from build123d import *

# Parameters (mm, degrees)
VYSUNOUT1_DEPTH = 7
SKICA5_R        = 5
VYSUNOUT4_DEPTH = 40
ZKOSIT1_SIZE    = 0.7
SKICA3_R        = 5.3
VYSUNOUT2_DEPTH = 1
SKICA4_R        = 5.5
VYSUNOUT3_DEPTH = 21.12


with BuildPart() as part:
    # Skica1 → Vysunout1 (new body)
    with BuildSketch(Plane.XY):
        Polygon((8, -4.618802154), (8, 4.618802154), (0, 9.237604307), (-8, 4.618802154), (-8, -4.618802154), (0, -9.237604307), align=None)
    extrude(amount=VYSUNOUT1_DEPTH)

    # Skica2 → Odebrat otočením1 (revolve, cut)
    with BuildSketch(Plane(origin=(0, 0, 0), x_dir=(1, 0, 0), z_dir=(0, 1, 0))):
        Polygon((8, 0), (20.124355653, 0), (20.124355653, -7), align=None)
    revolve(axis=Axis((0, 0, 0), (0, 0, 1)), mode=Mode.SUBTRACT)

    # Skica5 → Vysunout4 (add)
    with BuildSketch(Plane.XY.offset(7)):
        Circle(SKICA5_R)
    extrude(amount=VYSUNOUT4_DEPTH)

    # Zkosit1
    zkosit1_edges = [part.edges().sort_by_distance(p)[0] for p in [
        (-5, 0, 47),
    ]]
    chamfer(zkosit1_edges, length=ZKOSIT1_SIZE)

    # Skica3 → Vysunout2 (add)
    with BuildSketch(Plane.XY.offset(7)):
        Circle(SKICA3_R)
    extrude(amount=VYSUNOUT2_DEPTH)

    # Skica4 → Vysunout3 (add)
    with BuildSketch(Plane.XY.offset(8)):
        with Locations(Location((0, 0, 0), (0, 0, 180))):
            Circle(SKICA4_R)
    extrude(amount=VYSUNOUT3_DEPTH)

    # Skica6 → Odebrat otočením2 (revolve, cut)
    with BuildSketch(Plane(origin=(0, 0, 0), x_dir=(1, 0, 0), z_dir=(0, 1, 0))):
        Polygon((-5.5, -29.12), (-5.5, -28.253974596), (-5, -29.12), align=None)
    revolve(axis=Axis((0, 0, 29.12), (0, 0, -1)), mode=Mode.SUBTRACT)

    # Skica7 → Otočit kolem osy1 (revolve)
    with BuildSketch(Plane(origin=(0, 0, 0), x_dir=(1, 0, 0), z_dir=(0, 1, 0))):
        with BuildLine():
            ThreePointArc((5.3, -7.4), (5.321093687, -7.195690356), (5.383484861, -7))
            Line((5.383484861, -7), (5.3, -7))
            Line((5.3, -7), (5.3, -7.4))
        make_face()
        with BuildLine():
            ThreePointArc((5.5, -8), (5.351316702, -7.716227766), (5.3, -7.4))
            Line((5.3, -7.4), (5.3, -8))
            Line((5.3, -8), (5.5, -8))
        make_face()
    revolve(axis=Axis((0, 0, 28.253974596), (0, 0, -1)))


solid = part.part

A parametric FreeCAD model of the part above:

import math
import FreeCAD as App
import Part
import Sketcher

V = App.Vector
Q = App.Units.Quantity


def edges_at(feature, points):
    """Names of the edges that pass closest to the given points."""
    edges = feature.Shape.Edges
    near = lambda p: min(range(len(edges)), key=lambda i: edges[i].distToShape(Part.Vertex(*p))[0])
    return sorted({f"Edge{near(p) + 1}" for p in points})

doc = App.newDocument("Part")
body = doc.addObject("PartDesign::Body", "Body")

# Sketch on XY plane
sketch1 = doc.addObject("Sketcher::SketchObject", "Sketch")
body.addObject(sketch1)
sketch1.AttachmentSupport = (doc.XY_Plane, [""])
sketch1.MapMode = "FlatFace"
sketch1.addGeometry(Part.LineSegment(V(8, -5, 0), V(8, 5, 0)), False)
sketch1.addGeometry(Part.LineSegment(V(8, 5, 0), V(0, 9, 0)), False)
sketch1.addGeometry(Part.LineSegment(V(0, 9, 0), V(-8, 5, 0)), False)
sketch1.addGeometry(Part.LineSegment(V(-8, 5, 0), V(-8, -5, 0)), False)
sketch1.addGeometry(Part.LineSegment(V(-8, -5, 0), V(0, -9, 0)), False)
sketch1.addGeometry(Part.LineSegment(V(0, -9, 0), V(8, -5, 0)), False)
sketch1.addConstraint(Sketcher.Constraint("Coincident", 0, 2, 1, 1))
sketch1.addConstraint(Sketcher.Constraint("Coincident", 1, 2, 2, 1))
sketch1.addConstraint(Sketcher.Constraint("Coincident", 2, 2, 3, 1))
sketch1.addConstraint(Sketcher.Constraint("Coincident", 3, 2, 4, 1))
sketch1.addConstraint(Sketcher.Constraint("Coincident", 4, 2, 5, 1))
sketch1.addConstraint(Sketcher.Constraint("Coincident", 5, 2, 0, 1))
sketch1.addConstraint(Sketcher.Constraint("Vertical", 0))
sketch1.addConstraint(Sketcher.Constraint("Vertical", 3))
sketch1.addConstraint(Sketcher.Constraint("Symmetric", 0, 2, 3, 2, -1, 1))
sketch1.addConstraint(Sketcher.Constraint("Symmetric", 1, 2, 4, 2, -1, 1))
sketch1.addConstraint(Sketcher.Constraint("PointOnObject", 1, 2, -2))
sketch1.addConstraint(Sketcher.Constraint("Parallel", 2, 5))
sketch1.addConstraint(Sketcher.Constraint("Horizontal", 0, 2, 2, 2))
sketch1.addConstraint(Sketcher.Constraint("Angle", 1, Q("150 deg")))
sketch1.addConstraint(Sketcher.Constraint("DistanceX", -1, 1, 0, 2, Q("8 mm")))
sketch1.addConstraint(Sketcher.Constraint("DistanceY", 0, 1, 0, 2, Q("9.237604 mm")))
pad1 = doc.addObject("PartDesign::Pad", "Pad")
body.addObject(pad1)
pad1.Profile = sketch1
pad1.Length = 7

# Sketch on XZ plane
sketch2 = doc.addObject("Sketcher::SketchObject", "Sketch001")
body.addObject(sketch2)
sketch2.AttachmentSupport = (doc.XZ_Plane, [""])
sketch2.MapMode = "FlatFace"
sketch2.addGeometry(Part.LineSegment(V(20, 0, 0), V(8, 0, 0)), False)
sketch2.addGeometry(Part.LineSegment(V(8, 0, 0), V(20, 7, 0)), False)
sketch2.addGeometry(Part.LineSegment(V(20, 7, 0), V(20, 0, 0)), False)
sketch2.addConstraint(Sketcher.Constraint("Coincident", 0, 2, 1, 1))
sketch2.addConstraint(Sketcher.Constraint("Coincident", 1, 2, 2, 1))
sketch2.addConstraint(Sketcher.Constraint("Coincident", 2, 2, 0, 1))
sketch2.addConstraint(Sketcher.Constraint("Horizontal", 0))
sketch2.addConstraint(Sketcher.Constraint("Vertical", 2))
sketch2.addConstraint(Sketcher.Constraint("PointOnObject", 0, 2, -1))
sketch2.addConstraint(Sketcher.Constraint("DistanceY", 2, 2, 2, 1, Q("7 mm")))
sketch2.addConstraint(Sketcher.Constraint("Angle", 1, Q("30 deg")))
sketch2.addConstraint(Sketcher.Constraint("DistanceX", -1, 1, 0, 2, Q("8 mm")))
groove = doc.addObject("PartDesign::Groove", "Groove")
body.addObject(groove)
groove.Profile = sketch2
groove.ReferenceAxis = (sketch2, ["V_Axis"])
groove.Angle = 360

# Sketch on XY plane
sketch3 = doc.addObject("Sketcher::SketchObject", "Sketch002")
body.addObject(sketch3)
sketch3.AttachmentSupport = (doc.XY_Plane, [""])
sketch3.MapMode = "FlatFace"
sketch3.AttachmentOffset = App.Placement(V(0, 0, 7), App.Rotation())
sketch3.addGeometry(Part.Circle(V(0, 0, 0), V(0, 0, 1), 5), False)
sketch3.addConstraint(Sketcher.Constraint("Coincident", 0, 3, -1, 1))
sketch3.addConstraint(Sketcher.Constraint("Diameter", 0, Q("10 mm")))
pad2 = doc.addObject("PartDesign::Pad", "Pad001")
body.addObject(pad2)
pad2.Profile = sketch3
pad2.Length = 40
doc.recompute()

chamfer = doc.addObject("PartDesign::Chamfer", "Chamfer")
body.addObject(chamfer)
chamfer.Base = (pad2, edges_at(pad2, [(-5, 0, 47)]))
chamfer.Size = 0.7

# Sketch on XY plane
sketch4 = doc.addObject("Sketcher::SketchObject", "Sketch003")
body.addObject(sketch4)
sketch4.AttachmentSupport = (doc.XY_Plane, [""])
sketch4.MapMode = "FlatFace"
sketch4.AttachmentOffset = App.Placement(V(0, 0, 7), App.Rotation())
sketch4.addGeometry(Part.Circle(V(0, 0, 0), V(0, 0, 1), 5), False)
sketch4.addConstraint(Sketcher.Constraint("Coincident", 0, 3, -1, 1))
sketch4.addConstraint(Sketcher.Constraint("Diameter", 0, Q("10.6 mm")))
pad3 = doc.addObject("PartDesign::Pad", "Pad002")
body.addObject(pad3)
pad3.Profile = sketch4
pad3.Length = 1

# Sketch on XY plane
sketch5 = doc.addObject("Sketcher::SketchObject", "Sketch004")
body.addObject(sketch5)
sketch5.AttachmentSupport = (doc.XY_Plane, [""])
sketch5.MapMode = "FlatFace"
sketch5.AttachmentOffset = App.Placement(V(0, 0, 8), App.Rotation())
sketch5.addGeometry(Part.Circle(V(0, 0, 0), V(0, 0, 1), 6), False)
sketch5.addConstraint(Sketcher.Constraint("Coincident", 0, 3, -1, 1))
sketch5.addConstraint(Sketcher.Constraint("Diameter", 0, Q("11 mm")))
pad4 = doc.addObject("PartDesign::Pad", "Pad003")
body.addObject(pad4)
pad4.Profile = sketch5
pad4.Length = 21.12

# Sketch on XZ plane
sketch6 = doc.addObject("Sketcher::SketchObject", "Sketch005")
body.addObject(sketch6)
sketch6.AttachmentSupport = (doc.XZ_Plane, [""])
sketch6.MapMode = "FlatFace"
sketch6.addGeometry(Part.LineSegment(V(-5.5, 28.3, 0), V(-5.5, 29.1, 0)), False)
sketch6.addGeometry(Part.LineSegment(V(-5.5, 29.1, 0), V(-5, 29.1, 0)), False)
sketch6.addGeometry(Part.LineSegment(V(-5, 29.1, 0), V(-5.5, 28.3, 0)), False)
sketch6.addConstraint(Sketcher.Constraint("Coincident", 0, 2, 1, 1))
sketch6.addConstraint(Sketcher.Constraint("Coincident", 1, 2, 2, 1))
sketch6.addConstraint(Sketcher.Constraint("Coincident", 2, 2, 0, 1))
sketch6.addConstraint(Sketcher.Constraint("Vertical", 0))
sketch6.addConstraint(Sketcher.Constraint("Horizontal", 1))
sketch6.addConstraint(Sketcher.Constraint("Angle", 2, Q("-120 deg")))
sketch6.addConstraint(Sketcher.Constraint("Distance", 2, Q("1 mm")))
sketch6.addConstraint(Sketcher.Constraint("DistanceX", 1, 2, -1, 1, Q("5 mm")))
sketch6.addConstraint(Sketcher.Constraint("DistanceY", -1, 1, 0, 2, Q("29.12 mm")))
groove2 = doc.addObject("PartDesign::Groove", "Groove001")
body.addObject(groove2)
groove2.Profile = sketch6
groove2.ReferenceAxis = (sketch6, ["V_Axis"])
groove2.Angle = 360

# Sketch on XZ plane
sketch7 = doc.addObject("Sketcher::SketchObject", "Sketch006")
body.addObject(sketch7)
sketch7.AttachmentSupport = (doc.XZ_Plane, [""])
sketch7.MapMode = "FlatFace"
sketch7.addGeometry(Part.ArcOfCircle(Part.Circle(V(6.3, 7.4, 0), V(0, 0, 1), 1), math.radians(180), math.radians(204)), False)
sketch7.addGeometry(Part.LineSegment(V(5.38, 7, 0), V(5.3, 7, 0)), False)
sketch7.addGeometry(Part.LineSegment(V(5.3, 7, 0), V(5.3, 7.4, 0)), False)
sketch7.addGeometry(Part.ArcOfCircle(Part.Circle(V(6.3, 7.4, 0), V(0, 0, 1), 1), math.radians(143), math.radians(180)), False)
sketch7.addGeometry(Part.LineSegment(V(5.3, 7.4, 0), V(5.3, 8, 0)), False)
sketch7.addGeometry(Part.LineSegment(V(5.3, 8, 0), V(5.5, 8, 0)), False)
sketch7.addConstraint(Sketcher.Constraint("Coincident", 0, 2, 1, 1))
sketch7.addConstraint(Sketcher.Constraint("Coincident", 1, 2, 2, 1))
sketch7.addConstraint(Sketcher.Constraint("Tangent", 2, 2, 0, 1))
sketch7.addConstraint(Sketcher.Constraint("Tangent", 3, 2, 4, 1))
sketch7.addConstraint(Sketcher.Constraint("Coincident", 4, 2, 5, 1))
sketch7.addConstraint(Sketcher.Constraint("Coincident", 5, 2, 3, 1))
sketch7.addConstraint(Sketcher.Constraint("Horizontal", 1))
sketch7.addConstraint(Sketcher.Constraint("Vertical", 2))
sketch7.addConstraint(Sketcher.Constraint("Vertical", 4))
sketch7.addConstraint(Sketcher.Constraint("Horizontal", 5))
sketch7.addConstraint(Sketcher.Constraint("Coincident", 3, 3, 0, 3))
sketch7.addConstraint(Sketcher.Constraint("Equal", 0, 3))
sketch7.addConstraint(Sketcher.Constraint("Radius", 0, Q("1 mm")))
sketch7.addConstraint(Sketcher.Constraint("DistanceX", 5, 1, 5, 2, Q("0.2 mm")))
sketch7.addConstraint(Sketcher.Constraint("DistanceY", 2, 1, 2, 2, Q("0.4 mm")))
sketch7.addConstraint(Sketcher.Constraint("DistanceY", -1, 1, 0, 2, Q("7 mm")))
sketch7.addConstraint(Sketcher.Constraint("DistanceX", -1, 1, 0, 3, Q("6.3 mm")))
revolution = doc.addObject("PartDesign::Revolution", "Revolution")
body.addObject(revolution)
revolution.Profile = sketch7
revolution.ReferenceAxis = (sketch7, ["V_Axis"])
revolution.Angle = 360

doc.recompute()
